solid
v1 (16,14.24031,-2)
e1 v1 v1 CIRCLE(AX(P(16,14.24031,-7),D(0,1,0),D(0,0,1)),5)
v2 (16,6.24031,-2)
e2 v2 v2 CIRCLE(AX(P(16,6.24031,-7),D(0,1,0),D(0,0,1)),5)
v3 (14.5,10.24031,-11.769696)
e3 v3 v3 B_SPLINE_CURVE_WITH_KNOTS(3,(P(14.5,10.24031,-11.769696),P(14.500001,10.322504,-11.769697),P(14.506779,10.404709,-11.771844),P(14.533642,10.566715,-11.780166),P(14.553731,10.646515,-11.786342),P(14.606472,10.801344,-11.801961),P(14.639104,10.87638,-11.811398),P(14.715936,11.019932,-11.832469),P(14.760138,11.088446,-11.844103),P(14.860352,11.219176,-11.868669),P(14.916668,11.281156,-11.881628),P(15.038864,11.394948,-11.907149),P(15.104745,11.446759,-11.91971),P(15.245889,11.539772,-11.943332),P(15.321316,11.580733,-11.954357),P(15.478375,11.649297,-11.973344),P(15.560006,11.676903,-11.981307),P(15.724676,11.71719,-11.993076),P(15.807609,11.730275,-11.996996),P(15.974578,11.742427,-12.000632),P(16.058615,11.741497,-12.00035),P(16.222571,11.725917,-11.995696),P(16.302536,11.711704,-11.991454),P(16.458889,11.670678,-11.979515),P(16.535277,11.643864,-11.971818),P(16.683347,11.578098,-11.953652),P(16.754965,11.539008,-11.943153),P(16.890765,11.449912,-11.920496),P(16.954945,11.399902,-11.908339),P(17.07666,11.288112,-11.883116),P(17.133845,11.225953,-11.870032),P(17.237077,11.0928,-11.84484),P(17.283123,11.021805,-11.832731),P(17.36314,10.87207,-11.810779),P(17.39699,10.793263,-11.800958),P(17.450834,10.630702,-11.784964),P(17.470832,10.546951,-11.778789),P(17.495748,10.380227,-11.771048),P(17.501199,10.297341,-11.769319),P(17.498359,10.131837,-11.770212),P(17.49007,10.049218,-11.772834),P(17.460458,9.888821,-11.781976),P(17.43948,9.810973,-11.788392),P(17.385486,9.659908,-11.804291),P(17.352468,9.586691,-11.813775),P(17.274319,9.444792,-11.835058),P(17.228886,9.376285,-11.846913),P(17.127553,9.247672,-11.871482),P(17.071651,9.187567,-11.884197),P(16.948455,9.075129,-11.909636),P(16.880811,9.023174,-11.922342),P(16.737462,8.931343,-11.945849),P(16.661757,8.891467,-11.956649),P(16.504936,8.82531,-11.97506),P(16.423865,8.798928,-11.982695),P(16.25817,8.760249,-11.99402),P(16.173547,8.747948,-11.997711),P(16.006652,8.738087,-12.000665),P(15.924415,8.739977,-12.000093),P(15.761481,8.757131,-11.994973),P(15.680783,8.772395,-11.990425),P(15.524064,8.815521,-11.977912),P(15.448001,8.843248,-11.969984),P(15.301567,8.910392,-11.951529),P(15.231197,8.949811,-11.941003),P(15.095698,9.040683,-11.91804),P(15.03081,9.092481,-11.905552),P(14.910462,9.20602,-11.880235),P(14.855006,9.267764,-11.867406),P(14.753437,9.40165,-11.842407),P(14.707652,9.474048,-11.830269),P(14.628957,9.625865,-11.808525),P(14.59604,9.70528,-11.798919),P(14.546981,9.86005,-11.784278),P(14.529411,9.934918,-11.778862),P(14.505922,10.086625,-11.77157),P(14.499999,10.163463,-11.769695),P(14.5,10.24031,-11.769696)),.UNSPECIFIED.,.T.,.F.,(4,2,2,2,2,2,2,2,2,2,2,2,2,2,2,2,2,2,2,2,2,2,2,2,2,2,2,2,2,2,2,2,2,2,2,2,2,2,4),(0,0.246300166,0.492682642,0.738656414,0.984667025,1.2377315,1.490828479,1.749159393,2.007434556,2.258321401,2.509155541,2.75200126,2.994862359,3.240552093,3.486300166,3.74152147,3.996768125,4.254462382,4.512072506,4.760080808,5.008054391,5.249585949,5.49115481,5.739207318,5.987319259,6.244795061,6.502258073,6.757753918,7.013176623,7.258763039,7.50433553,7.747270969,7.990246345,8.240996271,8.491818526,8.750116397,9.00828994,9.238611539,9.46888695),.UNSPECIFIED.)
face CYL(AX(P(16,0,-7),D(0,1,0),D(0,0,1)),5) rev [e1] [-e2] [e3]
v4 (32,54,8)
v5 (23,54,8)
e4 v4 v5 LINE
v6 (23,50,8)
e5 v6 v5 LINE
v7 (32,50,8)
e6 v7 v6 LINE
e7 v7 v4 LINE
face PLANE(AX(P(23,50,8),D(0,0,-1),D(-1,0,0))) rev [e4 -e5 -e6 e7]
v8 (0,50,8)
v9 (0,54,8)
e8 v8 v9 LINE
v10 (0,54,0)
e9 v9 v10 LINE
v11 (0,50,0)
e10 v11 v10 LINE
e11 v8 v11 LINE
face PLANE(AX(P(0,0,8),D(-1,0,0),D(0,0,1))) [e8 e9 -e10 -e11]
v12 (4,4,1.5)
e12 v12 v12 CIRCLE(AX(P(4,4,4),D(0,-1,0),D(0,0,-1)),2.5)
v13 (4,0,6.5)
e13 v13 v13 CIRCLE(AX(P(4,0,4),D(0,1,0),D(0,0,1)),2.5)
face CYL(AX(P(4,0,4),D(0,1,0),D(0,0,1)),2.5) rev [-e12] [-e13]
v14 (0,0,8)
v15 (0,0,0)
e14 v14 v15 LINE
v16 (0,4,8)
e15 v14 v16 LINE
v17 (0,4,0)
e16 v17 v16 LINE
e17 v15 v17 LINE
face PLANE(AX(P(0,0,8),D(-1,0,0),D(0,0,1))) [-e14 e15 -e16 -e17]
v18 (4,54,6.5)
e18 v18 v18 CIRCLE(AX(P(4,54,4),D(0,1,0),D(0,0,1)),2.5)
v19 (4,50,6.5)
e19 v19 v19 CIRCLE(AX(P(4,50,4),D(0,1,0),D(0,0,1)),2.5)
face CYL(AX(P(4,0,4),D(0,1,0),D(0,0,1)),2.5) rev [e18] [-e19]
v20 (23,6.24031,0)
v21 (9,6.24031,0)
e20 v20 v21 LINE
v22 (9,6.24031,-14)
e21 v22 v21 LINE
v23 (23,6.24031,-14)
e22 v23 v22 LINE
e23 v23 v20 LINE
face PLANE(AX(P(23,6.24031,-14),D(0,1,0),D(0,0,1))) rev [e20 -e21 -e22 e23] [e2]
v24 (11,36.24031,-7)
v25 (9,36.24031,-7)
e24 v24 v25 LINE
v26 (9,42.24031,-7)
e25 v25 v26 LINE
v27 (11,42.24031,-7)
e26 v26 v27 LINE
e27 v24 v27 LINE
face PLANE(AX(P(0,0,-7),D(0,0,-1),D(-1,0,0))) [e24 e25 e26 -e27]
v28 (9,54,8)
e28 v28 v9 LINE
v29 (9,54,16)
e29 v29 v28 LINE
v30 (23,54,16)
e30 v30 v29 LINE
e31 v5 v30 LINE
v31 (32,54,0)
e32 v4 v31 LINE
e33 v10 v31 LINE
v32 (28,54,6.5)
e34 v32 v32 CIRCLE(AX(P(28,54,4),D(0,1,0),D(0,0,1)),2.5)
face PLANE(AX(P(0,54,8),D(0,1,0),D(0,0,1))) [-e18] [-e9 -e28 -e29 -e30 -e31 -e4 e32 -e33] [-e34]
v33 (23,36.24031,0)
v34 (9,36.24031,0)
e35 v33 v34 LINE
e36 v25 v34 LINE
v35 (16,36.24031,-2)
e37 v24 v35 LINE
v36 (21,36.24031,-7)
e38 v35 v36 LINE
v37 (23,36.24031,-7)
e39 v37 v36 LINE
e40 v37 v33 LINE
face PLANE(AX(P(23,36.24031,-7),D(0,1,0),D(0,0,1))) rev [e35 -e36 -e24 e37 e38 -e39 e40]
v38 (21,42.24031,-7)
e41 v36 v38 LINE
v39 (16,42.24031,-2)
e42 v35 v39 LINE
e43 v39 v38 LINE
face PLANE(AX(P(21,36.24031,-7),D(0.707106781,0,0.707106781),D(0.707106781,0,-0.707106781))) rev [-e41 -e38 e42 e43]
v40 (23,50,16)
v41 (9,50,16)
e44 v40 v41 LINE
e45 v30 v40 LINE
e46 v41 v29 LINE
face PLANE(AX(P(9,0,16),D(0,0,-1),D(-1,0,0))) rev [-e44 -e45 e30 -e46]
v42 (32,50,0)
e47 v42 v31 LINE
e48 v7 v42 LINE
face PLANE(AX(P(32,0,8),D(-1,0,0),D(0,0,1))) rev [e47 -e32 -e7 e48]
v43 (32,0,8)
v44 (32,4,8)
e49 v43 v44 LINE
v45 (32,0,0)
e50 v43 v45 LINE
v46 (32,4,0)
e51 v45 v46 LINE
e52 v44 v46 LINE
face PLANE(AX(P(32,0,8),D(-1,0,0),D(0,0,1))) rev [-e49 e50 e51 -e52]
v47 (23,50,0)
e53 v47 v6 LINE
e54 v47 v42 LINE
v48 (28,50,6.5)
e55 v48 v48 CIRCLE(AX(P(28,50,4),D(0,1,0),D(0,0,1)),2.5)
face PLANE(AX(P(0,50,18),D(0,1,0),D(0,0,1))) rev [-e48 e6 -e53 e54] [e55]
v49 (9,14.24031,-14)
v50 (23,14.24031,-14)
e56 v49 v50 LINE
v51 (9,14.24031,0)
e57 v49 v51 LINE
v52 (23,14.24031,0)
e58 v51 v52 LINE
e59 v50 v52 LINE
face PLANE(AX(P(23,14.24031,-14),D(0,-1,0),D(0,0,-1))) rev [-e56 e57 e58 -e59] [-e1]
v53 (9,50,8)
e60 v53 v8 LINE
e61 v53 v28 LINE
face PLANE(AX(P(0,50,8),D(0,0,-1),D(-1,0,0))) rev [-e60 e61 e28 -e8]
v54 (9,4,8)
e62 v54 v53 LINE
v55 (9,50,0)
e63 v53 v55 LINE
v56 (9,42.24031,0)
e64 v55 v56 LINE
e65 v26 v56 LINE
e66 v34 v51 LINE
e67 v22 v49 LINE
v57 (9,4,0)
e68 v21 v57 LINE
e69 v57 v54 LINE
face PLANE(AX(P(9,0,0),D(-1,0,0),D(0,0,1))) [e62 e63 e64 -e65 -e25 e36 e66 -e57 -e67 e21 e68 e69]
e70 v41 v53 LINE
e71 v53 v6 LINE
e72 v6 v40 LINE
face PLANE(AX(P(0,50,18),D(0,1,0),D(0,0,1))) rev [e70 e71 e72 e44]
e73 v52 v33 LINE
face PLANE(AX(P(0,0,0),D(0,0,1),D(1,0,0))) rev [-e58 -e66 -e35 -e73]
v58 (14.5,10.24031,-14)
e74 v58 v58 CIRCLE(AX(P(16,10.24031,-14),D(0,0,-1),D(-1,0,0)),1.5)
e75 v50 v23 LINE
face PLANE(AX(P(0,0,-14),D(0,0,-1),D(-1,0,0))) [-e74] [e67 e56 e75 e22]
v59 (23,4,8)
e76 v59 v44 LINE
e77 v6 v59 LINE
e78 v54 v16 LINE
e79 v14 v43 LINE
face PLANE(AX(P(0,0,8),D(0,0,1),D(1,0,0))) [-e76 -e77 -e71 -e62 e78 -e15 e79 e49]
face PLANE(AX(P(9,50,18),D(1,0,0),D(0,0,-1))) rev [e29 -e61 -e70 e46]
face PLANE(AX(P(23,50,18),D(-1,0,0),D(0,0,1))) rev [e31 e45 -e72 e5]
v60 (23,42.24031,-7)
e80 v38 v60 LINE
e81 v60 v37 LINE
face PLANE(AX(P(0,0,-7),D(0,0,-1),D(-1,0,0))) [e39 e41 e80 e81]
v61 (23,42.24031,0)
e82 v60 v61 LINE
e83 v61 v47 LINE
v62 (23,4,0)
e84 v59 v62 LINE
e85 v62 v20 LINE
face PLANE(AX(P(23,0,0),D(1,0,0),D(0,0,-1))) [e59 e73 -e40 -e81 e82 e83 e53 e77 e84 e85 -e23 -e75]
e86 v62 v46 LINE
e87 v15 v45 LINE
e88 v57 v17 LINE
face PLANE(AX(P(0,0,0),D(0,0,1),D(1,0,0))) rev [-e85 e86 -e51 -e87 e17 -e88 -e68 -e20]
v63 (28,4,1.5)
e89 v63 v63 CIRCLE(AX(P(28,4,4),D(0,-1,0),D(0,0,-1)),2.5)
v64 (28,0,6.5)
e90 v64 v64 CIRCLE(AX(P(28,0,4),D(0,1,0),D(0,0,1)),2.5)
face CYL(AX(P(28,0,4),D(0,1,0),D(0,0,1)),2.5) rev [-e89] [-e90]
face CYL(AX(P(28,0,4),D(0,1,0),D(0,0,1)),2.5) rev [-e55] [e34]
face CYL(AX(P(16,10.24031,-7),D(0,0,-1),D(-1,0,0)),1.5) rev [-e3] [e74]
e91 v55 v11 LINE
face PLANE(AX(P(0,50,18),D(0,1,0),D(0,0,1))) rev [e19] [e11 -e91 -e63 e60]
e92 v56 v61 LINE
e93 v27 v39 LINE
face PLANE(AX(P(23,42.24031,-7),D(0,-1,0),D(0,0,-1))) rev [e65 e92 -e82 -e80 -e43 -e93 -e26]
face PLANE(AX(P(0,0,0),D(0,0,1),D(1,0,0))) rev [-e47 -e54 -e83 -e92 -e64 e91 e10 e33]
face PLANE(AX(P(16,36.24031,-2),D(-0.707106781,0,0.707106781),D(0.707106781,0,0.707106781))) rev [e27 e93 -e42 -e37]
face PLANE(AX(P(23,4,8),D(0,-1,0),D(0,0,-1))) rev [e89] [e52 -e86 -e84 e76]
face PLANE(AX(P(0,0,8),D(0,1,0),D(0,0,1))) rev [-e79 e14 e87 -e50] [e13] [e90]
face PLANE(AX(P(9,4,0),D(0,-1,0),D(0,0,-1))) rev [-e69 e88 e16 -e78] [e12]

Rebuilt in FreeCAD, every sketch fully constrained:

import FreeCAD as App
import Part
import Sketcher

V = App.Vector
Q = App.Units.Quantity


def add_polygon(sketch, points):
    """Adds a closed chain of lines whose ends are joined by coincident constraints."""
    first, n = sketch.GeometryCount, len(points)
    for a, b in zip(points, points[1:] + points[:1]):
        sketch.addGeometry(Part.LineSegment(App.Vector(*a, 0), App.Vector(*b, 0)), False)
    for i in range(n):
        sketch.addConstraint(Sketcher.Constraint("Coincident", first + i, 2, first + (i + 1) % n, 1))

doc = App.newDocument("Part")
body = doc.addObject("PartDesign::Body", "Body")

# Sketch on XY plane
sketch1 = doc.addObject("Sketcher::SketchObject", "Sketch")
body.addObject(sketch1)
sketch1.AttachmentSupport = (doc.XY_Plane, [""])
sketch1.MapMode = "FlatFace"
add_polygon(sketch1, [(0, 54), (0, 0), (32, 0), (32, 54)])  # lines 0-3
sketch1.addConstraint([
    Sketcher.Constraint("Vertical", 0),
    Sketcher.Constraint("Horizontal", 1),
    Sketcher.Constraint("Vertical", 2),
    Sketcher.Constraint("Horizontal", 3),
    Sketcher.Constraint("Coincident", 0, 2, -1, 1),
    Sketcher.Constraint("DistanceX", 1, 1, 1, 2, Q("32 mm")),
    Sketcher.Constraint("DistanceY", 0, 2, 0, 1, Q("54 mm")),
])
pad1 = doc.addObject("PartDesign::Pad", "Pad")
body.addObject(pad1)
pad1.Profile = sketch1
pad1.Length = 8

# Sketch on XY plane
sketch2 = doc.addObject("Sketcher::SketchObject", "Sketch001")
body.addObject(sketch2)
sketch2.AttachmentSupport = (doc.XY_Plane, [""])
sketch2.MapMode = "FlatFace"
sketch2.AttachmentOffset = App.Placement(V(0, 0, 8), App.Rotation())
add_polygon(sketch2, [(0, 54), (0, 50), (32, 50), (32, 54)])  # lines 0-3
sketch2.addConstraint([
    Sketcher.Constraint("Vertical", 0),
    Sketcher.Constraint("Horizontal", 1),
    Sketcher.Constraint("Vertical", 2),
    Sketcher.Constraint("Horizontal", 3),
    Sketcher.Constraint("PointOnObject", 0, 2, -2),
    Sketcher.Constraint("DistanceX", 1, 1, 1, 2, Q("32 mm")),
    Sketcher.Constraint("DistanceY", 0, 2, 0, 1, Q("4 mm")),
    Sketcher.Constraint("DistanceY", -1, 1, 0, 2, Q("50 mm")),
])
pad2 = doc.addObject("PartDesign::Pad", "Pad001")
body.addObject(pad2)
pad2.Profile = sketch2
pad2.Length = 10

# Sketch on YZ plane
sketch3 = doc.addObject("Sketcher::SketchObject", "Sketch002")
body.addObject(sketch3)
sketch3.AttachmentSupport = (doc.YZ_Plane, [""])
sketch3.MapMode = "FlatFace"
sketch3.AttachmentOffset = App.Placement(V(0, 0, 32), App.Rotation())
add_polygon(sketch3, [(50, 8), (4, 8), (4, 0), (50, 0)])  # lines 0-3
sketch3.addConstraint([
    Sketcher.Constraint("Horizontal", 0),
    Sketcher.Constraint("Vertical", 1),
    Sketcher.Constraint("Horizontal", 2),
    Sketcher.Constraint("Vertical", 3),
    Sketcher.Constraint("PointOnObject", 1, 2, -1),
    Sketcher.Constraint("DistanceX", 0, 2, 0, 1, Q("46 mm")),
    Sketcher.Constraint("DistanceY", 1, 2, 1, 1, Q("8 mm")),
    Sketcher.Constraint("DistanceX", -1, 1, 0, 2, Q("4 mm")),
])
pocket1 = doc.addObject("PartDesign::Pocket", "Pocket")
body.addObject(pocket1)
pocket1.Profile = sketch3
pocket1.Length = 9

# Sketch on YZ plane
sketch4 = doc.addObject("Sketcher::SketchObject", "Sketch003")
body.addObject(sketch4)
sketch4.AttachmentSupport = (doc.YZ_Plane, [""])
sketch4.MapMode = "FlatFace"
add_polygon(sketch4, [(50, 0), (4, 0), (4, 8), (50, 8)])  # lines 0-3
sketch4.addConstraint([
    Sketcher.Constraint("Horizontal", 0),
    Sketcher.Constraint("Vertical", 1),
    Sketcher.Constraint("Horizontal", 2),
    Sketcher.Constraint("Vertical", 3),
    Sketcher.Constraint("PointOnObject", 0, 2, -1),
    Sketcher.Constraint("DistanceX", 0, 2, 0, 1, Q("46 mm")),
    Sketcher.Constraint("DistanceY", 1, 1, 1, 2, Q("8 mm")),
    Sketcher.Constraint("DistanceX", -1, 1, 0, 2, Q("4 mm")),
])
pocket2 = doc.addObject("PartDesign::Pocket", "Pocket001")
body.addObject(pocket2)
pocket2.Profile = sketch4
pocket2.Length = 9
pocket2.Reversed = True

# Sketch on XZ plane
sketch5 = doc.addObject("Sketcher::SketchObject", "Sketch004")
body.addObject(sketch5)
sketch5.AttachmentSupport = (doc.XZ_Plane, [""])
sketch5.MapMode = "FlatFace"
sketch5.AttachmentOffset = App.Placement(V(0, 0, -54), App.Rotation())
sketch5.addGeometry([
    Part.Circle(V(4, 4, 0), V(0, 0, 1), 2.5),
    Part.Circle(V(28, 4, 0), V(0, 0, 1), 2.5),
], False)
sketch5.addConstraint([
    Sketcher.Constraint("Equal", 0, 1),
    Sketcher.Constraint("Horizontal", 0, 3, 1, 3),
    Sketcher.Constraint("Diameter", 0, Q("5 mm")),
    Sketcher.Constraint("DistanceX", -1, 1, 0, 3, Q("4 mm")),
    Sketcher.Constraint("DistanceY", -1, 1, 0, 3, Q("4 mm")),
    Sketcher.Constraint("DistanceX", -1, 1, 1, 3, Q("28 mm")),
])
pocket3 = doc.addObject("PartDesign::Pocket", "Pocket002")
body.addObject(pocket3)
pocket3.Profile = sketch5
pocket3.Length = 54
pocket3.Reversed = True

# Sketch on XY plane
sketch6 = doc.addObject("Sketcher::SketchObject", "Sketch005")
body.addObject(sketch6)
sketch6.AttachmentSupport = (doc.XY_Plane, [""])
sketch6.MapMode = "FlatFace"
add_polygon(sketch6, [(23, 14), (23, 6), (9, 6), (9, 14)])  # lines 0-3
sketch6.addConstraint([
    Sketcher.Constraint("Vertical", 0),
    Sketcher.Constraint("Horizontal", 1),
    Sketcher.Constraint("Vertical", 2),
    Sketcher.Constraint("Horizontal", 3),
    Sketcher.Constraint("DistanceX", 1, 2, 1, 1, Q("14 mm")),
    Sketcher.Constraint("DistanceY", 0, 2, 0, 1, Q("8 mm")),
    Sketcher.Constraint("DistanceX", -1, 1, 0, 2, Q("23 mm")),
    Sketcher.Constraint("DistanceY", -1, 1, 0, 2, Q("6.24031 mm")),
])
pad3 = doc.addObject("PartDesign::Pad", "Pad002")
body.addObject(pad3)
pad3.Profile = sketch6
pad3.Length = 14
pad3.Reversed = True

# Sketch on XZ plane
sketch7 = doc.addObject("Sketcher::SketchObject", "Sketch006")
body.addObject(sketch7)
sketch7.AttachmentSupport = (doc.XZ_Plane, [""])
sketch7.MapMode = "FlatFace"
sketch7.AttachmentOffset = App.Placement(V(0, 0, -54), App.Rotation())
add_polygon(sketch7, [(23, 8), (23, 18), (32, 18), (32, 8)])  # lines 0-3
add_polygon(sketch7, [(0, 8), (0, 18), (9, 18), (9, 8)])  # lines 4-7
sketch7.addConstraint([
    Sketcher.Constraint("Vertical", 0),
    Sketcher.Constraint("Horizontal", 1),
    Sketcher.Constraint("Vertical", 2),
    Sketcher.Constraint("Horizontal", 3),
    Sketcher.Constraint("Vertical", 4),
    Sketcher.Constraint("Horizontal", 5),
    Sketcher.Constraint("Vertical", 6),
    Sketcher.Constraint("Horizontal", 7),
    Sketcher.Constraint("PointOnObject", 4, 2, -2),
    Sketcher.Constraint("Horizontal", 1, 2, 4, 2),
    Sketcher.Constraint("Horizontal", 3, 2, 6, 2),
    Sketcher.Constraint("Equal", 3, 5),
    Sketcher.Constraint("DistanceX", 1, 1, 1, 2, Q("9 mm")),
    Sketcher.Constraint("DistanceY", 0, 1, 0, 2, Q("10 mm")),
    Sketcher.Constraint("DistanceX", -1, 1, 0, 2, Q("23 mm")),
    Sketcher.Constraint("DistanceY", -1, 1, 0, 2, Q("18 mm")),
])
pocket4 = doc.addObject("PartDesign::Pocket", "Pocket003")
body.addObject(pocket4)
pocket4.Profile = sketch7
pocket4.Length = 4
pocket4.Reversed = True

# Sketch on XY plane
sketch8 = doc.addObject("Sketcher::SketchObject", "Sketch007")
body.addObject(sketch8)
sketch8.AttachmentSupport = (doc.XY_Plane, [""])
sketch8.MapMode = "FlatFace"
add_polygon(sketch8, [(23, 42), (23, 36), (9, 36), (9, 42)])  # lines 0-3
sketch8.addConstraint([
    Sketcher.Constraint("Vertical", 0),
    Sketcher.Constraint("Horizontal", 1),
    Sketcher.Constraint("Vertical", 2),
    Sketcher.Constraint("Horizontal", 3),
    Sketcher.Constraint("DistanceX", 1, 2, 1, 1, Q("14 mm")),
    Sketcher.Constraint("DistanceY", 0, 2, 0, 1, Q("6 mm")),
    Sketcher.Constraint("DistanceX", -1, 1, 0, 2, Q("23 mm")),
    Sketcher.Constraint("DistanceY", -1, 1, 0, 2, Q("36.24031 mm")),
])
pad4 = doc.addObject("PartDesign::Pad", "Pad003")
body.addObject(pad4)
pad4.Profile = sketch8
pad4.Length = 7
pad4.Reversed = True

# Sketch on XZ plane
sketch9 = doc.addObject("Sketcher::SketchObject", "Sketch008")
body.addObject(sketch9)
sketch9.AttachmentSupport = (doc.XZ_Plane, [""])
sketch9.MapMode = "FlatFace"
sketch9.AttachmentOffset = App.Placement(V(0, 0, -14.24031), App.Rotation())
sketch9.addGeometry(Part.Circle(V(16, -7, 0), V(0, 0, 1), 5), False)
sketch9.addConstraint([
    Sketcher.Constraint("Diameter", 0, Q("10 mm")),
    Sketcher.Constraint("DistanceX", -1, 1, 0, 3, Q("16 mm")),
    Sketcher.Constraint("DistanceY", 0, 3, -1, 1, Q("7 mm")),
])
pocket5 = doc.addObject("PartDesign::Pocket", "Pocket004")
body.addObject(pocket5)
pocket5.Profile = sketch9
pocket5.Type = "ThroughAll"
pocket5.Reversed = True

# Sketch on XY plane
sketch10 = doc.addObject("Sketcher::SketchObject", "Sketch009")
body.addObject(sketch10)
sketch10.AttachmentSupport = (doc.XY_Plane, [""])
sketch10.MapMode = "FlatFace"
sketch10.AttachmentOffset = App.Placement(V(0, 0, -14), App.Rotation())
sketch10.addGeometry(Part.Circle(V(16, 10.2, 0), V(0, 0, 1), 1.5), False)
sketch10.addConstraint([
    Sketcher.Constraint("Diameter", 0, Q("3 mm")),
    Sketcher.Constraint("DistanceX", -1, 1, 0, 3, Q("16 mm")),
    Sketcher.Constraint("DistanceY", -1, 1, 0, 3, Q("10.24031 mm")),
])
pocket6 = doc.addObject("PartDesign::Pocket", "Pocket005")
body.addObject(pocket6)
pocket6.Profile = sketch10
pocket6.Length = 7
pocket6.Reversed = True

# Sketch on XZ plane
sketch11 = doc.addObject("Sketcher::SketchObject", "Sketch010")
body.addObject(sketch11)
sketch11.AttachmentSupport = (doc.XZ_Plane, [""])
sketch11.MapMode = "FlatFace"
sketch11.AttachmentOffset = App.Placement(V(0, 0, -42.24031), App.Rotation())
add_polygon(sketch11, [(16, -2), (21, -7), (11, -7)])  # lines 0-2
sketch11.addConstraint([
    Sketcher.Constraint("Horizontal", 1),
    Sketcher.Constraint("Perpendicular", 0, 2),
    Sketcher.Constraint("Equal", 0, 2),
    Sketcher.Constraint("DistanceX", 1, 2, 1, 1, Q("10 mm")),
    Sketcher.Constraint("DistanceX", -1, 1, 0, 2, Q("21 mm")),
    Sketcher.Constraint("DistanceY", 0, 2, -1, 1, Q("7 mm")),
])
pocket7 = doc.addObject("PartDesign::Pocket", "Pocket006")
body.addObject(pocket7)
pocket7.Profile = sketch11
pocket7.Length = 6
pocket7.Reversed = True

# Sketch on XZ plane
sketch12 = doc.addObject("Sketcher::SketchObject", "Sketch011")
body.addObject(sketch12)
sketch12.AttachmentSupport = (doc.XZ_Plane, [""])
sketch12.MapMode = "FlatFace"
sketch12.AttachmentOffset = App.Placement(V(0, 0, -54), App.Rotation())
add_polygon(sketch12, [(9, 16), (9, 18), (23, 18), (23, 16)])  # lines 0-3
sketch12.addConstraint([
    Sketcher.Constraint("Vertical", 0),
    Sketcher.Constraint("Horizontal", 1),
    Sketcher.Constraint("Vertical", 2),
    Sketcher.Constraint("Horizontal", 3),
    Sketcher.Constraint("DistanceX", 1, 1, 1, 2, Q("14 mm")),
    Sketcher.Constraint("DistanceY", 0, 1, 0, 2, Q("2 mm")),
    Sketcher.Constraint("DistanceX", -1, 1, 0, 2, Q("9 mm")),
    Sketcher.Constraint("DistanceY", -1, 1, 0, 2, Q("18 mm")),
])
pocket8 = doc.addObject("PartDesign::Pocket", "Pocket007")
body.addObject(pocket8)
pocket8.Profile = sketch12
pocket8.Type = "ThroughAll"
pocket8.Reversed = True

doc.recompute()
